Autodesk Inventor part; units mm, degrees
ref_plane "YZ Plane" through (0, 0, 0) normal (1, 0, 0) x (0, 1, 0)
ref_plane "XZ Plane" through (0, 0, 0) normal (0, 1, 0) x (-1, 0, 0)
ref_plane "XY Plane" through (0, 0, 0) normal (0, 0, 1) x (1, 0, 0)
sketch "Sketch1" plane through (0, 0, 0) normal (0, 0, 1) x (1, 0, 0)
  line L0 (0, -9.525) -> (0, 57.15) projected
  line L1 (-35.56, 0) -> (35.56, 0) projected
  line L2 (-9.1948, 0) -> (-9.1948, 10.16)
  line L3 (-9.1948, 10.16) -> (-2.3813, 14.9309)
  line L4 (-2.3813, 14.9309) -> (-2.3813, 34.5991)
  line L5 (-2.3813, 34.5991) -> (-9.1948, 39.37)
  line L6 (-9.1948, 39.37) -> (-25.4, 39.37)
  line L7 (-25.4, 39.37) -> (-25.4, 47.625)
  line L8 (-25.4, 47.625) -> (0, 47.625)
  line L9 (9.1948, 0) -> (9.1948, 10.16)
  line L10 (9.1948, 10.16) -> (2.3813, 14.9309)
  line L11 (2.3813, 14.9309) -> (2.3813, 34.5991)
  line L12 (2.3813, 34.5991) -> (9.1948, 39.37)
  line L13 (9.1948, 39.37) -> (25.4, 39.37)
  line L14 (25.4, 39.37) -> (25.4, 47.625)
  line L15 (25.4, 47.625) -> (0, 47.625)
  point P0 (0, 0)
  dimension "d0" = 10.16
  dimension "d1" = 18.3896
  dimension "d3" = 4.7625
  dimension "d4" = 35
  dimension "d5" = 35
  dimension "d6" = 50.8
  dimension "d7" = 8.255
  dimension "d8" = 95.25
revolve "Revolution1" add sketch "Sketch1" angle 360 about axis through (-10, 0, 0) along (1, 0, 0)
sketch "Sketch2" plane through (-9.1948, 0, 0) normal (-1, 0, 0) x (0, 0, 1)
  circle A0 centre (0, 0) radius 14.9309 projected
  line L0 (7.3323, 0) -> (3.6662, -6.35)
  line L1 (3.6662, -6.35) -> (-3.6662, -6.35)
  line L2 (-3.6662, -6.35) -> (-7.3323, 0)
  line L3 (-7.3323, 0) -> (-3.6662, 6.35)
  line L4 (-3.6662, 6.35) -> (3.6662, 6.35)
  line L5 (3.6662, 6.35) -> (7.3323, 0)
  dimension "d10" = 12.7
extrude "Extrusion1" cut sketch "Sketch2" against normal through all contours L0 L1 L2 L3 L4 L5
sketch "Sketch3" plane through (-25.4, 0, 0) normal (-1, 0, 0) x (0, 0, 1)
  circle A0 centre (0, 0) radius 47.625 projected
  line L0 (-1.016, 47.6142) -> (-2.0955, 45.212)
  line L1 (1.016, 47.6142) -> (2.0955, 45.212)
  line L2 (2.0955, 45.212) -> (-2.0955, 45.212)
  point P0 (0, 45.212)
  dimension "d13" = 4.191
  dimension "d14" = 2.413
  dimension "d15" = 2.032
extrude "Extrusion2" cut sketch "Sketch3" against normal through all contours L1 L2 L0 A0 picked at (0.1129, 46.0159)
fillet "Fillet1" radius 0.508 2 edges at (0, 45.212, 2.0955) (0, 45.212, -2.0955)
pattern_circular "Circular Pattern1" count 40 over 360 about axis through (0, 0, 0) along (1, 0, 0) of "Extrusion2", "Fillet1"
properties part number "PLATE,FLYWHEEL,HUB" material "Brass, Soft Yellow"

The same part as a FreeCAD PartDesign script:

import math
import FreeCAD as App
import Part
import Sketcher
from FreeCAD import Vector
Q = App.Units.Quantity


def edges_at(feature, points):
    """Names of the edges that pass closest to the given points."""
    edges = feature.Shape.Edges
    near = lambda p: min(range(len(edges)), key=lambda i: edges[i].distToShape(Part.Vertex(*p))[0])
    return sorted({f"Edge{near(p) + 1}" for p in points})

doc = App.newDocument("Part")
body = doc.addObject("PartDesign::Body", "Body")

sketch1 = doc.addObject("Sketcher::SketchObject", "Sketch")
body.addObject(sketch1)
sketch1.AttachmentSupport = (doc.XY_Plane, [""])
sketch1.MapMode = "FlatFace"
sketch1.addGeometry(Part.LineSegment(Vector(-9, 0, 0), Vector(9, 0, 0)), False)
sketch1.addGeometry(Part.LineSegment(Vector(9, 0, 0), Vector(9, 10, 0)), False)
sketch1.addGeometry(Part.LineSegment(Vector(9, 10, 0), Vector(2, 15, 0)), False)
sketch1.addGeometry(Part.LineSegment(Vector(2, 15, 0), Vector(2, 35, 0)), False)
sketch1.addGeometry(Part.LineSegment(Vector(2, 35, 0), Vector(9, 39, 0)), False)
sketch1.addGeometry(Part.LineSegment(Vector(9, 39, 0), Vector(25, 39, 0)), False)
sketch1.addGeometry(Part.LineSegment(Vector(25, 39, 0), Vector(25, 48, 0)), False)
sketch1.addGeometry(Part.LineSegment(Vector(25, 48, 0), Vector(-25, 48, 0)), False)
sketch1.addGeometry(Part.LineSegment(Vector(-25, 48, 0), Vector(-25, 39, 0)), False)
sketch1.addGeometry(Part.LineSegment(Vector(-25, 39, 0), Vector(-9, 39, 0)), False)
sketch1.addGeometry(Part.LineSegment(Vector(-9, 39, 0), Vector(-2, 35, 0)), False)
sketch1.addGeometry(Part.LineSegment(Vector(-2, 35, 0), Vector(-2, 15, 0)), False)
sketch1.addGeometry(Part.LineSegment(Vector(-2, 15, 0), Vector(-9, 10, 0)), False)
sketch1.addGeometry(Part.LineSegment(Vector(-9, 10, 0), Vector(-9, 0, 0)), False)
sketch1.addConstraint(Sketcher.Constraint("Coincident", 0, 2, 1, 1))
sketch1.addConstraint(Sketcher.Constraint("Coincident", 1, 2, 2, 1))
sketch1.addConstraint(Sketcher.Constraint("Coincident", 2, 2, 3, 1))
sketch1.addConstraint(Sketcher.Constraint("Coincident", 3, 2, 4, 1))
sketch1.addConstraint(Sketcher.Constraint("Coincident", 4, 2, 5, 1))
sketch1.addConstraint(Sketcher.Constraint("Coincident", 5, 2, 6, 1))
sketch1.addConstraint(Sketcher.Constraint("Coincident", 6, 2, 7, 1))
sketch1.addConstraint(Sketcher.Constraint("Coincident", 7, 2, 8, 1))
sketch1.addConstraint(Sketcher.Constraint("Coincident", 8, 2, 9, 1))
sketch1.addConstraint(Sketcher.Constraint("Coincident", 9, 2, 10, 1))
sketch1.addConstraint(Sketcher.Constraint("Coincident", 10, 2, 11, 1))
sketch1.addConstraint(Sketcher.Constraint("Coincident", 11, 2, 12, 1))
sketch1.addConstraint(Sketcher.Constraint("Coincident", 12, 2, 13, 1))
sketch1.addConstraint(Sketcher.Constraint("Coincident", 13, 2, 0, 1))
sketch1.addConstraint(Sketcher.Constraint("Horizontal", 0))
sketch1.addConstraint(Sketcher.Constraint("Vertical", 1))
sketch1.addConstraint(Sketcher.Constraint("Vertical", 3))
sketch1.addConstraint(Sketcher.Constraint("Horizontal", 5))
sketch1.addConstraint(Sketcher.Constraint("Vertical", 6))
sketch1.addConstraint(Sketcher.Constraint("Horizontal", 7))
sketch1.addConstraint(Sketcher.Constraint("Vertical", 8))
sketch1.addConstraint(Sketcher.Constraint("Horizontal", 9))
sketch1.addConstraint(Sketcher.Constraint("Vertical", 11))
sketch1.addConstraint(Sketcher.Constraint("Vertical", 13))
sketch1.addConstraint(Sketcher.Constraint("Symmetric", 0, 2, 13, 2, -1, 1))
sketch1.addConstraint(Sketcher.Constraint("Symmetric", 5, 2, 8, 2, -2))
sketch1.addConstraint(Sketcher.Constraint("Symmetric", 3, 2, 10, 2, -2))
sketch1.addConstraint(Sketcher.Constraint("Parallel", 2, 10))
sketch1.addConstraint(Sketcher.Constraint("Parallel", 4, 12))
sketch1.addConstraint(Sketcher.Constraint("Horizontal", 2, 2, 11, 2))
sketch1.addConstraint(Sketcher.Constraint("Horizontal", 1, 2, 12, 2))
sketch1.addConstraint(Sketcher.Constraint("Vertical", 1, 2, 4, 2))
sketch1.addConstraint(Sketcher.Constraint("DistanceX", 7, 2, 7, 1, Q("2 in")))
sketch1.addConstraint(Sketcher.Constraint("DistanceY", 1, 1, 1, 2, Q("0.4 in")))
sketch1.addConstraint(Sketcher.Constraint("Angle", 4, Q("35.0002 deg")))
sketch1.addConstraint(Sketcher.Constraint("DistanceX", 0, 1, 0, 2, Q("0.724 in")))
sketch1.addConstraint(Sketcher.Constraint("DistanceY", 6, 1, 6, 2, Q("0.325 in")))
sketch1.addConstraint(Sketcher.Constraint("DistanceX", 10, 2, 3, 2, Q("0.1875 in")))
sketch1.addConstraint(Sketcher.Constraint("DistanceY", -1, 1, 4, 2, Q("1.55 in")))
revolution = doc.addObject("PartDesign::Revolution", "Revolution")
body.addObject(revolution)
revolution.Profile = sketch1
revolution.ReferenceAxis = (sketch1, ["H_Axis"])
revolution.Angle = 360

sketch2 = doc.addObject("Sketcher::SketchObject", "Sketch001")
body.addObject(sketch2)
sketch2.AttachmentSupport = (doc.YZ_Plane, [""])
sketch2.MapMode = "FlatFace"
sketch2.AttachmentOffset = App.Placement(Vector(0, 0, -0.362 * 25.4), App.Rotation())
sketch2.addGeometry(Part.LineSegment(Vector(-6, 4, 0), Vector(0, 7, 0)), False)
sketch2.addGeometry(Part.LineSegment(Vector(0, 7, 0), Vector(6, 4, 0)), False)
sketch2.addGeometry(Part.LineSegment(Vector(6, 4, 0), Vector(6, -4, 0)), False)
sketch2.addGeometry(Part.LineSegment(Vector(6, -4, 0), Vector(0, -7, 0)), False)
sketch2.addGeometry(Part.LineSegment(Vector(0, -7, 0), Vector(-6, -4, 0)), False)
sketch2.addGeometry(Part.LineSegment(Vector(-6, -4, 0), Vector(-6, 4, 0)), False)
sketch2.addConstraint(Sketcher.Constraint("Coincident", 0, 2, 1, 1))
sketch2.addConstraint(Sketcher.Constraint("Coincident", 1, 2, 2, 1))
sketch2.addConstraint(Sketcher.Constraint("Coincident", 2, 2, 3, 1))
sketch2.addConstraint(Sketcher.Constraint("Coincident", 3, 2, 4, 1))
sketch2.addConstraint(Sketcher.Constraint("Coincident", 4, 2, 5, 1))
sketch2.addConstraint(Sketcher.Constraint("Coincident", 5, 2, 0, 1))
sketch2.addConstraint(Sketcher.Constraint("Vertical", 2))
sketch2.addConstraint(Sketcher.Constraint("Vertical", 5))
sketch2.addConstraint(Sketcher.Constraint("Symmetric", 0, 2, 3, 2, -1, 1))
sketch2.addConstraint(Sketcher.Constraint("Symmetric", 1, 2, 4, 2, -1, 1))
sketch2.addConstraint(Sketcher.Constraint("PointOnObject", 0, 2, -2))
sketch2.addConstraint(Sketcher.Constraint("Parallel", 0, 3))
sketch2.addConstraint(Sketcher.Constraint("Horizontal", 2, 2, 4, 2))
sketch2.addConstraint(Sketcher.Constraint("DistanceX", 4, 2, 2, 2, Q("0.5 in")))
sketch2.addConstraint(Sketcher.Constraint("Angle", 0, Q("29.9995 deg")))
sketch2.addConstraint(Sketcher.Constraint("DistanceY", 2, 2, 0, 2, Q("0.433 in")))
pocket1 = doc.addObject("PartDesign::Pocket", "Pocket")
body.addObject(pocket1)
pocket1.Profile = sketch2
pocket1.Type = "ThroughAll"
pocket1.Reversed = True

sketch3 = doc.addObject("Sketcher::SketchObject", "Sketch002")
body.addObject(sketch3)
sketch3.AttachmentSupport = (doc.YZ_Plane, [""])
sketch3.MapMode = "FlatFace"
sketch3.AttachmentOffset = App.Placement(Vector(0, 0, -1 * 25.4), App.Rotation())
sketch3.addGeometry(Part.LineSegment(Vector(45.2, 2.1, 0), Vector(47.6, 1, 0)), False)
sketch3.addGeometry(Part.ArcOfCircle(Part.Circle(Vector(0, 0, 0), Vector(0, 0, 1), 47.6), math.radians(-1.22), math.radians(1.22)), False)
sketch3.addGeometry(Part.LineSegment(Vector(47.6, -1, 0), Vector(45.2, -2.1, 0)), False)
sketch3.addGeometry(Part.LineSegment(Vector(45.2, -2.1, 0), Vector(45.2, 2.1, 0)), False)
sketch3.addConstraint(Sketcher.Constraint("Coincident", 0, 2, 1, 2))
sketch3.addConstraint(Sketcher.Constraint("Coincident", 1, 1, 2, 1))
sketch3.addConstraint(Sketcher.Constraint("Coincident", 2, 2, 3, 1))
sketch3.addConstraint(Sketcher.Constraint("Coincident", 3, 2, 0, 1))
sketch3.addConstraint(Sketcher.Constraint("Vertical", 3))
sketch3.addConstraint(Sketcher.Constraint("Coincident", 1, 3, -1, 1))
sketch3.addConstraint(Sketcher.Constraint("Vertical", 0, 2, 1, 1))
sketch3.addConstraint(Sketcher.Constraint("Equal", 0, 2))
sketch3.addConstraint(Sketcher.Constraint("DistanceY", 3, 1, 3, 2, Q("0.165 in")))
sketch3.addConstraint(Sketcher.Constraint("DistanceY", 1, 1, 0, 2, Q("0.08 in")))
sketch3.addConstraint(Sketcher.Constraint("Radius", 1, Q("1.875 in")))
sketch3.addConstraint(Sketcher.Constraint("DistanceX", -1, 1, 2, 2, Q("1.78 in")))
pocket2 = doc.addObject("PartDesign::Pocket", "Pocket001")
body.addObject(pocket2)
pocket2.Profile = sketch3
pocket2.Type = "ThroughAll"
pocket2.Reversed = True
doc.recompute()

fillet = doc.addObject("PartDesign::Fillet", "Fillet")
body.addObject(fillet)
fillet.Base = (pocket2, edges_at(pocket2, [(0, 45.212, 2.095), (0, 45.212, -2.095)]))
fillet.Radius = Q("0.02 in")
doc.recompute()

polarpattern = doc.addObject("PartDesign::PolarPattern", "PolarPattern")
body.addObject(polarpattern)
polarpattern.Originals = [pocket2, fillet]
polarpattern.Axis = (doc.X_Axis, [""])
polarpattern.Angle = 360
polarpattern.Occurrences = 40
body.Tip = polarpattern

doc.recompute()
